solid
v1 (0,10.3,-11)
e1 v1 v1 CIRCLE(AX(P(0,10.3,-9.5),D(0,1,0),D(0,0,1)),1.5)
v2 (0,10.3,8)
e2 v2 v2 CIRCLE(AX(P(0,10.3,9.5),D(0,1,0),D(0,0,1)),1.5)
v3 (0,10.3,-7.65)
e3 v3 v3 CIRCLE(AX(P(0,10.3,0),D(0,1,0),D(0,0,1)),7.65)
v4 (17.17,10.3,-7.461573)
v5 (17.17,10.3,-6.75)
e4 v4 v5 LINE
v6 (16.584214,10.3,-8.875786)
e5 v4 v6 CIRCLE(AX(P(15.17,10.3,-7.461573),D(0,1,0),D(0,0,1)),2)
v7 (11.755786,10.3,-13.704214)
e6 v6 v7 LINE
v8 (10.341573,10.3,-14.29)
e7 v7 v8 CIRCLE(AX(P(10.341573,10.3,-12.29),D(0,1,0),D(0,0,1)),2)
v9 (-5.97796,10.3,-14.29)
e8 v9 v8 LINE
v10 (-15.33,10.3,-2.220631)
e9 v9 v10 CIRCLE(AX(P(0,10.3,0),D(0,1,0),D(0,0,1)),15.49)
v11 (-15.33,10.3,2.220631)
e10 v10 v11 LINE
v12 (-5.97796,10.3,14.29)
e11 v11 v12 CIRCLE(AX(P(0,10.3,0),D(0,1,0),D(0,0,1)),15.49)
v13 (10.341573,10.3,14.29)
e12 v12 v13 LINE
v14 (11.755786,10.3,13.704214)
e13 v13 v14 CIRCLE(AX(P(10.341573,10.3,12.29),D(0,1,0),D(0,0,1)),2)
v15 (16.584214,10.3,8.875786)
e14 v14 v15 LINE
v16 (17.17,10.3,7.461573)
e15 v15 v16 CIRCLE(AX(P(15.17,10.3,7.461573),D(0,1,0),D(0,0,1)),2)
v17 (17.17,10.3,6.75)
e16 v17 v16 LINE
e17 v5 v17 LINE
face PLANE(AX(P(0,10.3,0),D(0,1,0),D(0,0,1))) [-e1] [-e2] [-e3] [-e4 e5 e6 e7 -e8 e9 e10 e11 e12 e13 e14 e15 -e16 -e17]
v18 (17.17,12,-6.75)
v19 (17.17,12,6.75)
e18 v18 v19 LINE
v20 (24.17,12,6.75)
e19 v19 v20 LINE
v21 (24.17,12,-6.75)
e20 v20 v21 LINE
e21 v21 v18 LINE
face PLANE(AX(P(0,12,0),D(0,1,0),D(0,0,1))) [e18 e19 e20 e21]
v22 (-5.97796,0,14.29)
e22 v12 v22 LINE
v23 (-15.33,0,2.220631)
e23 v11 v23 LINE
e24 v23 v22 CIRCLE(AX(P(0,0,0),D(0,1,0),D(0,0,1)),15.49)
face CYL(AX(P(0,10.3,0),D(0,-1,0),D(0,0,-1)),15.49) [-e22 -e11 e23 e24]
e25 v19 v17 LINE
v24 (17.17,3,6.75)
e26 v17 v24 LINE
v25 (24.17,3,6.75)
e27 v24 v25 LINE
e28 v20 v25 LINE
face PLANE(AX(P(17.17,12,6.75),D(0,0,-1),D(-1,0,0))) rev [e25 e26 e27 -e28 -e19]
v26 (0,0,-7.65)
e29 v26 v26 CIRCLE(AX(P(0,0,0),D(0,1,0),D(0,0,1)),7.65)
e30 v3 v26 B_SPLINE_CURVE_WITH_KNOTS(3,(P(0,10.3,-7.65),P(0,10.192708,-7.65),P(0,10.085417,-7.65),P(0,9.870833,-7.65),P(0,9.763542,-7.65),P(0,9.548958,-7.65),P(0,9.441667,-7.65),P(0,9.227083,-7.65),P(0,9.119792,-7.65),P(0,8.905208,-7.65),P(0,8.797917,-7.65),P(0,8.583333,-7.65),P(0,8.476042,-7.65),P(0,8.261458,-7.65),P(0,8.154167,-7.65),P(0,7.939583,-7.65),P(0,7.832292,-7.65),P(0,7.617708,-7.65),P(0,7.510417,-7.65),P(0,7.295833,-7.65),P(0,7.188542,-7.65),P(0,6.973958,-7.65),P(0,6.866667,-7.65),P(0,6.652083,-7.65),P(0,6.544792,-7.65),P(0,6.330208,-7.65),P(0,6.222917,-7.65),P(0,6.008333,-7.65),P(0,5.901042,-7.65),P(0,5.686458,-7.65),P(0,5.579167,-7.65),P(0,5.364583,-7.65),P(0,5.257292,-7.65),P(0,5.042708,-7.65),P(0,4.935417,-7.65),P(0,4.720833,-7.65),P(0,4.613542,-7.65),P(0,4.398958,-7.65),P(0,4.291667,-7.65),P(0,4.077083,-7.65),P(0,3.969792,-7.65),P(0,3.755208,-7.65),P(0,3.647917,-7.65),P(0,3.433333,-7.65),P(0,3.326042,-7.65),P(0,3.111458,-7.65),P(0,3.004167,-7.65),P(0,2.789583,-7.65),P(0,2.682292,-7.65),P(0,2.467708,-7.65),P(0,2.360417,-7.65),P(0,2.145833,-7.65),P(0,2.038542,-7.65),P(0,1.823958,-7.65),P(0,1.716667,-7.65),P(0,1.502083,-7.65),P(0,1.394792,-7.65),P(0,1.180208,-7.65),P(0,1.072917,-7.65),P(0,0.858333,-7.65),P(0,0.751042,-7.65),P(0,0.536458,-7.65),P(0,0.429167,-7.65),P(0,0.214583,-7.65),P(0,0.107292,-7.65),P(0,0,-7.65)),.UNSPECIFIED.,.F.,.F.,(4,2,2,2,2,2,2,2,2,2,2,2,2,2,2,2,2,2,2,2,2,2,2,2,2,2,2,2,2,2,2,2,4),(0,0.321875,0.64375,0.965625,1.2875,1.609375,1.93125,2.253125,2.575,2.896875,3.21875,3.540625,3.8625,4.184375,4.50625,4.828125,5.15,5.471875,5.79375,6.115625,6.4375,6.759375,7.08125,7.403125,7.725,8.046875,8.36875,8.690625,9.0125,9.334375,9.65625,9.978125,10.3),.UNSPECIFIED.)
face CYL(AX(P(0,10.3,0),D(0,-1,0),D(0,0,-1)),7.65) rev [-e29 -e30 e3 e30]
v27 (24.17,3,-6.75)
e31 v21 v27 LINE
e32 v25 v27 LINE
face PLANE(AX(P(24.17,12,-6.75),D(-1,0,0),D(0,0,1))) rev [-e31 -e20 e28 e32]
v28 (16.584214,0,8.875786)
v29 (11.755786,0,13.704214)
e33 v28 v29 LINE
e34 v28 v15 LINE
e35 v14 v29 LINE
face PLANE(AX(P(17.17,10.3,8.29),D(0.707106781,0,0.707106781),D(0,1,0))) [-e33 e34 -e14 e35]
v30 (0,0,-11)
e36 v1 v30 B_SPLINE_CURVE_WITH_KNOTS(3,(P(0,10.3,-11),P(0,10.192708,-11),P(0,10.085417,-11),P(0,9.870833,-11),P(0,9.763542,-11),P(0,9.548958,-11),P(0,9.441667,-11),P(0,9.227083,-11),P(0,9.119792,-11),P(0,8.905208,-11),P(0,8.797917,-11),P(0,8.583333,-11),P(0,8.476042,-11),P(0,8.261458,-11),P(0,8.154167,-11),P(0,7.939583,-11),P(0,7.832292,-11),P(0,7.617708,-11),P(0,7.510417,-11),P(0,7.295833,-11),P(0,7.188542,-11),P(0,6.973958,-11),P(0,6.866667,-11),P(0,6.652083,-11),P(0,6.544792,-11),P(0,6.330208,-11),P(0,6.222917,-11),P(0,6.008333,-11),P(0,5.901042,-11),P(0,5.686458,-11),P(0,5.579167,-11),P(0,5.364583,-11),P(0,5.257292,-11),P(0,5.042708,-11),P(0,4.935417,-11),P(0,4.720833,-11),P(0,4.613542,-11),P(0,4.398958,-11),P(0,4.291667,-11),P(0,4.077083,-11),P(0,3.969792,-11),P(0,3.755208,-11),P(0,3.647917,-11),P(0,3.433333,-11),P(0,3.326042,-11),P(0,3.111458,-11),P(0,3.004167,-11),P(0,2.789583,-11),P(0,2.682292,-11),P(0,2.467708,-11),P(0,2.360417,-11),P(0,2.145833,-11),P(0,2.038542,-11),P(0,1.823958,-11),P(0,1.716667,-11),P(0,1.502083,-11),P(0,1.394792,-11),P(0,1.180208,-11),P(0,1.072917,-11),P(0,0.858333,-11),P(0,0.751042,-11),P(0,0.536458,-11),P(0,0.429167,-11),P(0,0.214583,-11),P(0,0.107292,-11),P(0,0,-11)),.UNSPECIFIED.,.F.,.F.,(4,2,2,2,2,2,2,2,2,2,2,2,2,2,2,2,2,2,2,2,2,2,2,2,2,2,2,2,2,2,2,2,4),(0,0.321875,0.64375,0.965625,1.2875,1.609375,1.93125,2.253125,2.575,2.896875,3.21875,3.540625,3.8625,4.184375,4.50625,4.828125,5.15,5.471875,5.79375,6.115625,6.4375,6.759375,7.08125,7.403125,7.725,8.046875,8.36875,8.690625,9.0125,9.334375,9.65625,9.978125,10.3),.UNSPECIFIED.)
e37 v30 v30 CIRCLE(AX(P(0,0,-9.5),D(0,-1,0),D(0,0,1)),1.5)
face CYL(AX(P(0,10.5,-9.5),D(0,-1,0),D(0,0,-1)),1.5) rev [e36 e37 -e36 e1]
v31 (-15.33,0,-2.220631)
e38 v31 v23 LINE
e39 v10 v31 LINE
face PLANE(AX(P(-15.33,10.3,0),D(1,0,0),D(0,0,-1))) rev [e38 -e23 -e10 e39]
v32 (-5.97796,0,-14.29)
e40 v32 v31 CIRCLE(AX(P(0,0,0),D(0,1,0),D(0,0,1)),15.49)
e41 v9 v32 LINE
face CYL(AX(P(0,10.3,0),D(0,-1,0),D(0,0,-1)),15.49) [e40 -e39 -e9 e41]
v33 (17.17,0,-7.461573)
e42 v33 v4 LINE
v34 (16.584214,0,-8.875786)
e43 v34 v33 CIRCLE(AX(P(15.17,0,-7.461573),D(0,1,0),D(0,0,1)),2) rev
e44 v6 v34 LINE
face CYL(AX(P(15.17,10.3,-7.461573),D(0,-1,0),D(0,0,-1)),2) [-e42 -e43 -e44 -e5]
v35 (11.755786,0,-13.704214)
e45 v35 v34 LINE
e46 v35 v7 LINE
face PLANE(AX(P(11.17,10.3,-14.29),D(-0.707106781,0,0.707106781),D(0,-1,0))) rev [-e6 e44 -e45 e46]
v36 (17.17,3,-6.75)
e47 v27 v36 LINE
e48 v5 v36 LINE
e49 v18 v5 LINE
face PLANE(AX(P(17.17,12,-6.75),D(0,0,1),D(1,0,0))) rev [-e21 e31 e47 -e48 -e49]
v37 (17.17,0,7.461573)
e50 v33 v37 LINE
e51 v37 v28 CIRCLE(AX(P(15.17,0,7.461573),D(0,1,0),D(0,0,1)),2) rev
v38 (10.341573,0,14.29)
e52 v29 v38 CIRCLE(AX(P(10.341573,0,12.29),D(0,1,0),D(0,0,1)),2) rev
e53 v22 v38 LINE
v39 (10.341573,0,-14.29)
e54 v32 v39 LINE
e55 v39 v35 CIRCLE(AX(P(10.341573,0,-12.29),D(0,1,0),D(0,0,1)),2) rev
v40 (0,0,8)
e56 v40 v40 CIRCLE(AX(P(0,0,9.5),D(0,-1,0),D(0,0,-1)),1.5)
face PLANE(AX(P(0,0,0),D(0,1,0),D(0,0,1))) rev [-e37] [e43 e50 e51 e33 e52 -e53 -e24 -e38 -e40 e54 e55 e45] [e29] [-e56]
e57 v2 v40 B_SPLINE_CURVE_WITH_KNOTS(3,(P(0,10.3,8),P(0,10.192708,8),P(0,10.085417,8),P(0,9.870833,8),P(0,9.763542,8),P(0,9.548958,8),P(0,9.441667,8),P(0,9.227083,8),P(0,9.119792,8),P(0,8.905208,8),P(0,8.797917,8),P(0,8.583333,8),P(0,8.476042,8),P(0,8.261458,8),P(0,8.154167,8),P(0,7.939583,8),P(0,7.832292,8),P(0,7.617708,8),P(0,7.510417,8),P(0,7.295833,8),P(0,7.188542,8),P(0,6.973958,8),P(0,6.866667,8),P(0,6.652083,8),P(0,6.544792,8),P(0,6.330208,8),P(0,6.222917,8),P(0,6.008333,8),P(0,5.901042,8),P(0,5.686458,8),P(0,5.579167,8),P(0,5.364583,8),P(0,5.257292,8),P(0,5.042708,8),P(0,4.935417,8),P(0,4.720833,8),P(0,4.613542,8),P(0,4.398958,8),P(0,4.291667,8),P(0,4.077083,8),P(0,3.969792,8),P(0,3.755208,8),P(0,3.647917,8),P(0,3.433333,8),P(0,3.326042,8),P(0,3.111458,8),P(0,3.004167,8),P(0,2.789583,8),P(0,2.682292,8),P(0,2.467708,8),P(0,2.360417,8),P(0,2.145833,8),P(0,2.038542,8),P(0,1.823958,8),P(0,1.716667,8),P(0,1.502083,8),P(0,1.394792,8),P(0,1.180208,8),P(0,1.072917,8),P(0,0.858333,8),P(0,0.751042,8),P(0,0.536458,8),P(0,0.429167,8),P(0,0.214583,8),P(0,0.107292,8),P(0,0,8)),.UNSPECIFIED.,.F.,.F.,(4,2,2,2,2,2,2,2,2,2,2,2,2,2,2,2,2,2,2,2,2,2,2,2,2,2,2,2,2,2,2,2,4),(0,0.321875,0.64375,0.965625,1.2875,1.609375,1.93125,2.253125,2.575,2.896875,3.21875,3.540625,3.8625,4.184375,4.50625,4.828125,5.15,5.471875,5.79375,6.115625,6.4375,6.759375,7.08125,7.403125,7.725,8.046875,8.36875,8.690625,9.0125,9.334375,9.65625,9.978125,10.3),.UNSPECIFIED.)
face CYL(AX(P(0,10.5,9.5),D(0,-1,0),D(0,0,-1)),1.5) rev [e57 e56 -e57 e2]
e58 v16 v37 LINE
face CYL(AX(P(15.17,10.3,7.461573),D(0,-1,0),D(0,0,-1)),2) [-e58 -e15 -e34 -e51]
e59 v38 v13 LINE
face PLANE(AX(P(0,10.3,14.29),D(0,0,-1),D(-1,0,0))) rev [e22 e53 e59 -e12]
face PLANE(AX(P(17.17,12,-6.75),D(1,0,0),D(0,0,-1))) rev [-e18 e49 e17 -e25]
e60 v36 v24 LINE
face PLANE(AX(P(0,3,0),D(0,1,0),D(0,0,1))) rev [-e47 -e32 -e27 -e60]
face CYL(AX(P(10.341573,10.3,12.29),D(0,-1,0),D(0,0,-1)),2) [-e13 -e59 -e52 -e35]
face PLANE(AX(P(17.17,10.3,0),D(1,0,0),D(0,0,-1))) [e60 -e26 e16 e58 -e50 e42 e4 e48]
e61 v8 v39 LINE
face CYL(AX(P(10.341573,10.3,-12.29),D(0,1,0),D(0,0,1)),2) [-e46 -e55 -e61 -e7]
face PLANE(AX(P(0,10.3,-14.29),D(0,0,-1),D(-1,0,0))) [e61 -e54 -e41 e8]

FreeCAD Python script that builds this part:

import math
import FreeCAD as App
import Part
import Sketcher


def edges_at(feature, points):
    """Names of the edges that pass closest to the given points."""
    edges = feature.Shape.Edges
    near = lambda p: min(range(len(edges)), key=lambda i: edges[i].distToShape(Part.Vertex(*p))[0])
    return sorted({f"Edge{near(p) + 1}" for p in points})

doc = App.newDocument("Part")
params = doc.addObject("Spreadsheet::Sheet", "Params")
for row, (alias, value) in enumerate([
    ("sketch1_diameter", "15.3 mm"),
    ("sketch1_radius", "15.49 mm"),
    ("sketch1_height", "28.58 mm"),
    ("pad1_length", "10.3 mm"),
    ("sketch2_diameter", "3 mm"),
    ("pocket1_length", "10.5 mm"),
    ("chamfer_size", "6 mm"),
    ("fillet_radius", "2 mm"),
    ("sketch3_width", "7 mm"),
    ("sketch3_height", "13.5 mm"),
    ("pad2_length", "9 mm"),
], start=1):
    params.set(f"A{row}", alias)
    params.set(f"B{row}", "=" + value)
    params.setAlias(f"B{row}", alias)

body = doc.addObject("PartDesign::Body", "Body")

# Sketch on XZ plane
sketch1 = body.newObject("Sketcher::SketchObject", "Sketch")
sketch1.AttachmentSupport = (doc.getObject("XZ_Plane"), [""])
sketch1.MapMode = "FlatFace"
sketch1.addGeometry([
    Part.LineSegment(App.Vector(17.2, -14.3, 0), App.Vector(-6, -14.3, 0)),  # 0
    Part.ArcOfCircle(Part.Circle(App.Vector(0, 0, 0), App.Vector(0, 0, 1), 15.5), math.radians(-172), math.radians(-113)),  # 1
    Part.LineSegment(App.Vector(-15.3, -2.2, 0), App.Vector(-15.3, 2.2, 0)),  # 2
    Part.ArcOfCircle(Part.Circle(App.Vector(0, 0, 0), App.Vector(0, 0, 1), 15.5), math.radians(113), math.radians(172)),  # 3
    Part.LineSegment(App.Vector(-6, 14.3, 0), App.Vector(17.2, 14.3, 0)),  # 4
    Part.LineSegment(App.Vector(17.2, 14.3, 0), App.Vector(17.2, -14.3, 0)),  # 5
    Part.Circle(App.Vector(0, 0, 0), App.Vector(0, 0, 1), 7.7),  # 6
], False)
sketch1.addConstraint([
    Sketcher.Constraint("Coincident", 0, 2, 1, 2),
    Sketcher.Constraint("Coincident", 1, 1, 2, 1),
    Sketcher.Constraint("Coincident", 2, 2, 3, 2),
    Sketcher.Constraint("Coincident", 3, 1, 4, 1),
    Sketcher.Constraint("Coincident", 4, 2, 5, 1),
    Sketcher.Constraint("Coincident", 5, 2, 0, 1),
    Sketcher.Constraint("Horizontal", 0),
    Sketcher.Constraint("Vertical", 2),
    Sketcher.Constraint("Horizontal", 4),
    Sketcher.Constraint("Vertical", 5),
    Sketcher.Constraint("Coincident", 1, 3, -1, 1),
    Sketcher.Constraint("Coincident", 3, 3, -1, 1),
    Sketcher.Constraint("Coincident", 6, 3, -1, 1),
    Sketcher.Constraint("Equal", 1, 3),
    Sketcher.Constraint("Vertical", 0, 2, 3, 1),
    Sketcher.Constraint("Diameter", 6, 15.3),
    Sketcher.Constraint("Radius", 1, 15.49),
    Sketcher.Constraint("DistanceY", 5, 2, 5, 1, 28.58),
    Sketcher.Constraint("DistanceX", 2, 2, 4, 2, 32.5),
    Sketcher.Constraint("DistanceX", 1, 1, -1, 1, 15.33),
])
sketch1.setExpression("Constraints[15]", "Params.sketch1_diameter")
sketch1.setExpression("Constraints[16]", "Params.sketch1_radius")
sketch1.setExpression("Constraints[17]", "Params.sketch1_height")
pad1 = body.newObject("PartDesign::Pad", "Pad")
pad1.Profile = sketch1
pad1.setExpression("Length", "Params.pad1_length")
pad1.Reversed = True

# Sketch on XZ plane
sketch2 = body.newObject("Sketcher::SketchObject", "Sketch001")
sketch2.AttachmentSupport = (doc.getObject("XZ_Plane"), [""])
sketch2.MapMode = "FlatFace"
sketch2.addGeometry([
    Part.Circle(App.Vector(0, 9.5, 0), App.Vector(0, 0, 1), 1.5),
    Part.Circle(App.Vector(0, -9.5, 0), App.Vector(0, 0, 1), 1.5),
], False)
sketch2.addConstraint([
    Sketcher.Constraint("Equal", 0, 1),
    Sketcher.Constraint("Symmetric", 0, 3, 1, 3, -1, 1),
    Sketcher.Constraint("PointOnObject", 0, 3, -2),
    Sketcher.Constraint("Diameter", 0, 3.0),
    Sketcher.Constraint("DistanceY", 1, 3, 0, 3, 19.0),
])
sketch2.setExpression("Constraints[3]", "Params.sketch2_diameter")
pocket1 = body.newObject("PartDesign::Pocket", "Pocket")
pocket1.Profile = sketch2
pocket1.setExpression("Length", "Params.pocket1_length")
doc.recompute()

chamfer = body.newObject("PartDesign::Chamfer", "Chamfer")
chamfer.Base = (pocket1, edges_at(pocket1, [(17.17, 5.15, -14.29), (17.17, 5.15, 14.29)]))
chamfer.setExpression("Size", "Params.chamfer_size")
doc.recompute()

fillet = body.newObject("PartDesign::Fillet", "Fillet")
fillet.Base = (chamfer, edges_at(chamfer, [
    (11.17, 5.15, -14.29),
    (17.17, 5.15, 8.29),
    (17.17, 5.15, -8.29),
    (11.17, 5.15, 14.29),
]))
fillet.setExpression("Radius", "Params.fillet_radius")

# Sketch on XZ plane
sketch3 = body.newObject("Sketcher::SketchObject", "Sketch002")
sketch3.AttachmentSupport = (doc.getObject("XZ_Plane"), [""])
sketch3.MapMode = "FlatFace"
sketch3.AttachmentOffset = App.Placement(App.Vector(0, 0, -3), App.Rotation())
sketch3.addGeometry([
    Part.LineSegment(App.Vector(17, -7, 0), App.Vector(17, 7, 0)),
    Part.LineSegment(App.Vector(17, 7, 0), App.Vector(24, 7, 0)),
    Part.LineSegment(App.Vector(24, 7, 0), App.Vector(24, -7, 0)),
    Part.LineSegment(App.Vector(24, -7, 0), App.Vector(17, -7, 0)),
], False)
sketch3.addConstraint([
    Sketcher.Constraint("Coincident", 0, 2, 1, 1),
    Sketcher.Constraint("Coincident", 1, 2, 2, 1),
    Sketcher.Constraint("Coincident", 2, 2, 3, 1),
    Sketcher.Constraint("Coincident", 3, 2, 0, 1),
    Sketcher.Constraint("Vertical", 0),
    Sketcher.Constraint("Horizontal", 1),
    Sketcher.Constraint("Vertical", 2),
    Sketcher.Constraint("Horizontal", 3),
    Sketcher.Constraint("DistanceX", 1, 1, 1, 2, 7.0),
    Sketcher.Constraint("DistanceY", 0, 1, 0, 2, 13.5),
    Sketcher.Constraint("DistanceX", -1, 1, 0, 2, 17.17),
    Sketcher.Constraint("DistanceY", -1, 1, 0, 2, 6.75),
])
sketch3.setExpression("Constraints[8]", "Params.sketch3_width")
sketch3.setExpression("Constraints[9]", "Params.sketch3_height")
pad2 = body.newObject("PartDesign::Pad", "Pad001")
pad2.Profile = sketch3
pad2.setExpression("Length", "Params.pad2_length")
pad2.Reversed = True

doc.recompute()
